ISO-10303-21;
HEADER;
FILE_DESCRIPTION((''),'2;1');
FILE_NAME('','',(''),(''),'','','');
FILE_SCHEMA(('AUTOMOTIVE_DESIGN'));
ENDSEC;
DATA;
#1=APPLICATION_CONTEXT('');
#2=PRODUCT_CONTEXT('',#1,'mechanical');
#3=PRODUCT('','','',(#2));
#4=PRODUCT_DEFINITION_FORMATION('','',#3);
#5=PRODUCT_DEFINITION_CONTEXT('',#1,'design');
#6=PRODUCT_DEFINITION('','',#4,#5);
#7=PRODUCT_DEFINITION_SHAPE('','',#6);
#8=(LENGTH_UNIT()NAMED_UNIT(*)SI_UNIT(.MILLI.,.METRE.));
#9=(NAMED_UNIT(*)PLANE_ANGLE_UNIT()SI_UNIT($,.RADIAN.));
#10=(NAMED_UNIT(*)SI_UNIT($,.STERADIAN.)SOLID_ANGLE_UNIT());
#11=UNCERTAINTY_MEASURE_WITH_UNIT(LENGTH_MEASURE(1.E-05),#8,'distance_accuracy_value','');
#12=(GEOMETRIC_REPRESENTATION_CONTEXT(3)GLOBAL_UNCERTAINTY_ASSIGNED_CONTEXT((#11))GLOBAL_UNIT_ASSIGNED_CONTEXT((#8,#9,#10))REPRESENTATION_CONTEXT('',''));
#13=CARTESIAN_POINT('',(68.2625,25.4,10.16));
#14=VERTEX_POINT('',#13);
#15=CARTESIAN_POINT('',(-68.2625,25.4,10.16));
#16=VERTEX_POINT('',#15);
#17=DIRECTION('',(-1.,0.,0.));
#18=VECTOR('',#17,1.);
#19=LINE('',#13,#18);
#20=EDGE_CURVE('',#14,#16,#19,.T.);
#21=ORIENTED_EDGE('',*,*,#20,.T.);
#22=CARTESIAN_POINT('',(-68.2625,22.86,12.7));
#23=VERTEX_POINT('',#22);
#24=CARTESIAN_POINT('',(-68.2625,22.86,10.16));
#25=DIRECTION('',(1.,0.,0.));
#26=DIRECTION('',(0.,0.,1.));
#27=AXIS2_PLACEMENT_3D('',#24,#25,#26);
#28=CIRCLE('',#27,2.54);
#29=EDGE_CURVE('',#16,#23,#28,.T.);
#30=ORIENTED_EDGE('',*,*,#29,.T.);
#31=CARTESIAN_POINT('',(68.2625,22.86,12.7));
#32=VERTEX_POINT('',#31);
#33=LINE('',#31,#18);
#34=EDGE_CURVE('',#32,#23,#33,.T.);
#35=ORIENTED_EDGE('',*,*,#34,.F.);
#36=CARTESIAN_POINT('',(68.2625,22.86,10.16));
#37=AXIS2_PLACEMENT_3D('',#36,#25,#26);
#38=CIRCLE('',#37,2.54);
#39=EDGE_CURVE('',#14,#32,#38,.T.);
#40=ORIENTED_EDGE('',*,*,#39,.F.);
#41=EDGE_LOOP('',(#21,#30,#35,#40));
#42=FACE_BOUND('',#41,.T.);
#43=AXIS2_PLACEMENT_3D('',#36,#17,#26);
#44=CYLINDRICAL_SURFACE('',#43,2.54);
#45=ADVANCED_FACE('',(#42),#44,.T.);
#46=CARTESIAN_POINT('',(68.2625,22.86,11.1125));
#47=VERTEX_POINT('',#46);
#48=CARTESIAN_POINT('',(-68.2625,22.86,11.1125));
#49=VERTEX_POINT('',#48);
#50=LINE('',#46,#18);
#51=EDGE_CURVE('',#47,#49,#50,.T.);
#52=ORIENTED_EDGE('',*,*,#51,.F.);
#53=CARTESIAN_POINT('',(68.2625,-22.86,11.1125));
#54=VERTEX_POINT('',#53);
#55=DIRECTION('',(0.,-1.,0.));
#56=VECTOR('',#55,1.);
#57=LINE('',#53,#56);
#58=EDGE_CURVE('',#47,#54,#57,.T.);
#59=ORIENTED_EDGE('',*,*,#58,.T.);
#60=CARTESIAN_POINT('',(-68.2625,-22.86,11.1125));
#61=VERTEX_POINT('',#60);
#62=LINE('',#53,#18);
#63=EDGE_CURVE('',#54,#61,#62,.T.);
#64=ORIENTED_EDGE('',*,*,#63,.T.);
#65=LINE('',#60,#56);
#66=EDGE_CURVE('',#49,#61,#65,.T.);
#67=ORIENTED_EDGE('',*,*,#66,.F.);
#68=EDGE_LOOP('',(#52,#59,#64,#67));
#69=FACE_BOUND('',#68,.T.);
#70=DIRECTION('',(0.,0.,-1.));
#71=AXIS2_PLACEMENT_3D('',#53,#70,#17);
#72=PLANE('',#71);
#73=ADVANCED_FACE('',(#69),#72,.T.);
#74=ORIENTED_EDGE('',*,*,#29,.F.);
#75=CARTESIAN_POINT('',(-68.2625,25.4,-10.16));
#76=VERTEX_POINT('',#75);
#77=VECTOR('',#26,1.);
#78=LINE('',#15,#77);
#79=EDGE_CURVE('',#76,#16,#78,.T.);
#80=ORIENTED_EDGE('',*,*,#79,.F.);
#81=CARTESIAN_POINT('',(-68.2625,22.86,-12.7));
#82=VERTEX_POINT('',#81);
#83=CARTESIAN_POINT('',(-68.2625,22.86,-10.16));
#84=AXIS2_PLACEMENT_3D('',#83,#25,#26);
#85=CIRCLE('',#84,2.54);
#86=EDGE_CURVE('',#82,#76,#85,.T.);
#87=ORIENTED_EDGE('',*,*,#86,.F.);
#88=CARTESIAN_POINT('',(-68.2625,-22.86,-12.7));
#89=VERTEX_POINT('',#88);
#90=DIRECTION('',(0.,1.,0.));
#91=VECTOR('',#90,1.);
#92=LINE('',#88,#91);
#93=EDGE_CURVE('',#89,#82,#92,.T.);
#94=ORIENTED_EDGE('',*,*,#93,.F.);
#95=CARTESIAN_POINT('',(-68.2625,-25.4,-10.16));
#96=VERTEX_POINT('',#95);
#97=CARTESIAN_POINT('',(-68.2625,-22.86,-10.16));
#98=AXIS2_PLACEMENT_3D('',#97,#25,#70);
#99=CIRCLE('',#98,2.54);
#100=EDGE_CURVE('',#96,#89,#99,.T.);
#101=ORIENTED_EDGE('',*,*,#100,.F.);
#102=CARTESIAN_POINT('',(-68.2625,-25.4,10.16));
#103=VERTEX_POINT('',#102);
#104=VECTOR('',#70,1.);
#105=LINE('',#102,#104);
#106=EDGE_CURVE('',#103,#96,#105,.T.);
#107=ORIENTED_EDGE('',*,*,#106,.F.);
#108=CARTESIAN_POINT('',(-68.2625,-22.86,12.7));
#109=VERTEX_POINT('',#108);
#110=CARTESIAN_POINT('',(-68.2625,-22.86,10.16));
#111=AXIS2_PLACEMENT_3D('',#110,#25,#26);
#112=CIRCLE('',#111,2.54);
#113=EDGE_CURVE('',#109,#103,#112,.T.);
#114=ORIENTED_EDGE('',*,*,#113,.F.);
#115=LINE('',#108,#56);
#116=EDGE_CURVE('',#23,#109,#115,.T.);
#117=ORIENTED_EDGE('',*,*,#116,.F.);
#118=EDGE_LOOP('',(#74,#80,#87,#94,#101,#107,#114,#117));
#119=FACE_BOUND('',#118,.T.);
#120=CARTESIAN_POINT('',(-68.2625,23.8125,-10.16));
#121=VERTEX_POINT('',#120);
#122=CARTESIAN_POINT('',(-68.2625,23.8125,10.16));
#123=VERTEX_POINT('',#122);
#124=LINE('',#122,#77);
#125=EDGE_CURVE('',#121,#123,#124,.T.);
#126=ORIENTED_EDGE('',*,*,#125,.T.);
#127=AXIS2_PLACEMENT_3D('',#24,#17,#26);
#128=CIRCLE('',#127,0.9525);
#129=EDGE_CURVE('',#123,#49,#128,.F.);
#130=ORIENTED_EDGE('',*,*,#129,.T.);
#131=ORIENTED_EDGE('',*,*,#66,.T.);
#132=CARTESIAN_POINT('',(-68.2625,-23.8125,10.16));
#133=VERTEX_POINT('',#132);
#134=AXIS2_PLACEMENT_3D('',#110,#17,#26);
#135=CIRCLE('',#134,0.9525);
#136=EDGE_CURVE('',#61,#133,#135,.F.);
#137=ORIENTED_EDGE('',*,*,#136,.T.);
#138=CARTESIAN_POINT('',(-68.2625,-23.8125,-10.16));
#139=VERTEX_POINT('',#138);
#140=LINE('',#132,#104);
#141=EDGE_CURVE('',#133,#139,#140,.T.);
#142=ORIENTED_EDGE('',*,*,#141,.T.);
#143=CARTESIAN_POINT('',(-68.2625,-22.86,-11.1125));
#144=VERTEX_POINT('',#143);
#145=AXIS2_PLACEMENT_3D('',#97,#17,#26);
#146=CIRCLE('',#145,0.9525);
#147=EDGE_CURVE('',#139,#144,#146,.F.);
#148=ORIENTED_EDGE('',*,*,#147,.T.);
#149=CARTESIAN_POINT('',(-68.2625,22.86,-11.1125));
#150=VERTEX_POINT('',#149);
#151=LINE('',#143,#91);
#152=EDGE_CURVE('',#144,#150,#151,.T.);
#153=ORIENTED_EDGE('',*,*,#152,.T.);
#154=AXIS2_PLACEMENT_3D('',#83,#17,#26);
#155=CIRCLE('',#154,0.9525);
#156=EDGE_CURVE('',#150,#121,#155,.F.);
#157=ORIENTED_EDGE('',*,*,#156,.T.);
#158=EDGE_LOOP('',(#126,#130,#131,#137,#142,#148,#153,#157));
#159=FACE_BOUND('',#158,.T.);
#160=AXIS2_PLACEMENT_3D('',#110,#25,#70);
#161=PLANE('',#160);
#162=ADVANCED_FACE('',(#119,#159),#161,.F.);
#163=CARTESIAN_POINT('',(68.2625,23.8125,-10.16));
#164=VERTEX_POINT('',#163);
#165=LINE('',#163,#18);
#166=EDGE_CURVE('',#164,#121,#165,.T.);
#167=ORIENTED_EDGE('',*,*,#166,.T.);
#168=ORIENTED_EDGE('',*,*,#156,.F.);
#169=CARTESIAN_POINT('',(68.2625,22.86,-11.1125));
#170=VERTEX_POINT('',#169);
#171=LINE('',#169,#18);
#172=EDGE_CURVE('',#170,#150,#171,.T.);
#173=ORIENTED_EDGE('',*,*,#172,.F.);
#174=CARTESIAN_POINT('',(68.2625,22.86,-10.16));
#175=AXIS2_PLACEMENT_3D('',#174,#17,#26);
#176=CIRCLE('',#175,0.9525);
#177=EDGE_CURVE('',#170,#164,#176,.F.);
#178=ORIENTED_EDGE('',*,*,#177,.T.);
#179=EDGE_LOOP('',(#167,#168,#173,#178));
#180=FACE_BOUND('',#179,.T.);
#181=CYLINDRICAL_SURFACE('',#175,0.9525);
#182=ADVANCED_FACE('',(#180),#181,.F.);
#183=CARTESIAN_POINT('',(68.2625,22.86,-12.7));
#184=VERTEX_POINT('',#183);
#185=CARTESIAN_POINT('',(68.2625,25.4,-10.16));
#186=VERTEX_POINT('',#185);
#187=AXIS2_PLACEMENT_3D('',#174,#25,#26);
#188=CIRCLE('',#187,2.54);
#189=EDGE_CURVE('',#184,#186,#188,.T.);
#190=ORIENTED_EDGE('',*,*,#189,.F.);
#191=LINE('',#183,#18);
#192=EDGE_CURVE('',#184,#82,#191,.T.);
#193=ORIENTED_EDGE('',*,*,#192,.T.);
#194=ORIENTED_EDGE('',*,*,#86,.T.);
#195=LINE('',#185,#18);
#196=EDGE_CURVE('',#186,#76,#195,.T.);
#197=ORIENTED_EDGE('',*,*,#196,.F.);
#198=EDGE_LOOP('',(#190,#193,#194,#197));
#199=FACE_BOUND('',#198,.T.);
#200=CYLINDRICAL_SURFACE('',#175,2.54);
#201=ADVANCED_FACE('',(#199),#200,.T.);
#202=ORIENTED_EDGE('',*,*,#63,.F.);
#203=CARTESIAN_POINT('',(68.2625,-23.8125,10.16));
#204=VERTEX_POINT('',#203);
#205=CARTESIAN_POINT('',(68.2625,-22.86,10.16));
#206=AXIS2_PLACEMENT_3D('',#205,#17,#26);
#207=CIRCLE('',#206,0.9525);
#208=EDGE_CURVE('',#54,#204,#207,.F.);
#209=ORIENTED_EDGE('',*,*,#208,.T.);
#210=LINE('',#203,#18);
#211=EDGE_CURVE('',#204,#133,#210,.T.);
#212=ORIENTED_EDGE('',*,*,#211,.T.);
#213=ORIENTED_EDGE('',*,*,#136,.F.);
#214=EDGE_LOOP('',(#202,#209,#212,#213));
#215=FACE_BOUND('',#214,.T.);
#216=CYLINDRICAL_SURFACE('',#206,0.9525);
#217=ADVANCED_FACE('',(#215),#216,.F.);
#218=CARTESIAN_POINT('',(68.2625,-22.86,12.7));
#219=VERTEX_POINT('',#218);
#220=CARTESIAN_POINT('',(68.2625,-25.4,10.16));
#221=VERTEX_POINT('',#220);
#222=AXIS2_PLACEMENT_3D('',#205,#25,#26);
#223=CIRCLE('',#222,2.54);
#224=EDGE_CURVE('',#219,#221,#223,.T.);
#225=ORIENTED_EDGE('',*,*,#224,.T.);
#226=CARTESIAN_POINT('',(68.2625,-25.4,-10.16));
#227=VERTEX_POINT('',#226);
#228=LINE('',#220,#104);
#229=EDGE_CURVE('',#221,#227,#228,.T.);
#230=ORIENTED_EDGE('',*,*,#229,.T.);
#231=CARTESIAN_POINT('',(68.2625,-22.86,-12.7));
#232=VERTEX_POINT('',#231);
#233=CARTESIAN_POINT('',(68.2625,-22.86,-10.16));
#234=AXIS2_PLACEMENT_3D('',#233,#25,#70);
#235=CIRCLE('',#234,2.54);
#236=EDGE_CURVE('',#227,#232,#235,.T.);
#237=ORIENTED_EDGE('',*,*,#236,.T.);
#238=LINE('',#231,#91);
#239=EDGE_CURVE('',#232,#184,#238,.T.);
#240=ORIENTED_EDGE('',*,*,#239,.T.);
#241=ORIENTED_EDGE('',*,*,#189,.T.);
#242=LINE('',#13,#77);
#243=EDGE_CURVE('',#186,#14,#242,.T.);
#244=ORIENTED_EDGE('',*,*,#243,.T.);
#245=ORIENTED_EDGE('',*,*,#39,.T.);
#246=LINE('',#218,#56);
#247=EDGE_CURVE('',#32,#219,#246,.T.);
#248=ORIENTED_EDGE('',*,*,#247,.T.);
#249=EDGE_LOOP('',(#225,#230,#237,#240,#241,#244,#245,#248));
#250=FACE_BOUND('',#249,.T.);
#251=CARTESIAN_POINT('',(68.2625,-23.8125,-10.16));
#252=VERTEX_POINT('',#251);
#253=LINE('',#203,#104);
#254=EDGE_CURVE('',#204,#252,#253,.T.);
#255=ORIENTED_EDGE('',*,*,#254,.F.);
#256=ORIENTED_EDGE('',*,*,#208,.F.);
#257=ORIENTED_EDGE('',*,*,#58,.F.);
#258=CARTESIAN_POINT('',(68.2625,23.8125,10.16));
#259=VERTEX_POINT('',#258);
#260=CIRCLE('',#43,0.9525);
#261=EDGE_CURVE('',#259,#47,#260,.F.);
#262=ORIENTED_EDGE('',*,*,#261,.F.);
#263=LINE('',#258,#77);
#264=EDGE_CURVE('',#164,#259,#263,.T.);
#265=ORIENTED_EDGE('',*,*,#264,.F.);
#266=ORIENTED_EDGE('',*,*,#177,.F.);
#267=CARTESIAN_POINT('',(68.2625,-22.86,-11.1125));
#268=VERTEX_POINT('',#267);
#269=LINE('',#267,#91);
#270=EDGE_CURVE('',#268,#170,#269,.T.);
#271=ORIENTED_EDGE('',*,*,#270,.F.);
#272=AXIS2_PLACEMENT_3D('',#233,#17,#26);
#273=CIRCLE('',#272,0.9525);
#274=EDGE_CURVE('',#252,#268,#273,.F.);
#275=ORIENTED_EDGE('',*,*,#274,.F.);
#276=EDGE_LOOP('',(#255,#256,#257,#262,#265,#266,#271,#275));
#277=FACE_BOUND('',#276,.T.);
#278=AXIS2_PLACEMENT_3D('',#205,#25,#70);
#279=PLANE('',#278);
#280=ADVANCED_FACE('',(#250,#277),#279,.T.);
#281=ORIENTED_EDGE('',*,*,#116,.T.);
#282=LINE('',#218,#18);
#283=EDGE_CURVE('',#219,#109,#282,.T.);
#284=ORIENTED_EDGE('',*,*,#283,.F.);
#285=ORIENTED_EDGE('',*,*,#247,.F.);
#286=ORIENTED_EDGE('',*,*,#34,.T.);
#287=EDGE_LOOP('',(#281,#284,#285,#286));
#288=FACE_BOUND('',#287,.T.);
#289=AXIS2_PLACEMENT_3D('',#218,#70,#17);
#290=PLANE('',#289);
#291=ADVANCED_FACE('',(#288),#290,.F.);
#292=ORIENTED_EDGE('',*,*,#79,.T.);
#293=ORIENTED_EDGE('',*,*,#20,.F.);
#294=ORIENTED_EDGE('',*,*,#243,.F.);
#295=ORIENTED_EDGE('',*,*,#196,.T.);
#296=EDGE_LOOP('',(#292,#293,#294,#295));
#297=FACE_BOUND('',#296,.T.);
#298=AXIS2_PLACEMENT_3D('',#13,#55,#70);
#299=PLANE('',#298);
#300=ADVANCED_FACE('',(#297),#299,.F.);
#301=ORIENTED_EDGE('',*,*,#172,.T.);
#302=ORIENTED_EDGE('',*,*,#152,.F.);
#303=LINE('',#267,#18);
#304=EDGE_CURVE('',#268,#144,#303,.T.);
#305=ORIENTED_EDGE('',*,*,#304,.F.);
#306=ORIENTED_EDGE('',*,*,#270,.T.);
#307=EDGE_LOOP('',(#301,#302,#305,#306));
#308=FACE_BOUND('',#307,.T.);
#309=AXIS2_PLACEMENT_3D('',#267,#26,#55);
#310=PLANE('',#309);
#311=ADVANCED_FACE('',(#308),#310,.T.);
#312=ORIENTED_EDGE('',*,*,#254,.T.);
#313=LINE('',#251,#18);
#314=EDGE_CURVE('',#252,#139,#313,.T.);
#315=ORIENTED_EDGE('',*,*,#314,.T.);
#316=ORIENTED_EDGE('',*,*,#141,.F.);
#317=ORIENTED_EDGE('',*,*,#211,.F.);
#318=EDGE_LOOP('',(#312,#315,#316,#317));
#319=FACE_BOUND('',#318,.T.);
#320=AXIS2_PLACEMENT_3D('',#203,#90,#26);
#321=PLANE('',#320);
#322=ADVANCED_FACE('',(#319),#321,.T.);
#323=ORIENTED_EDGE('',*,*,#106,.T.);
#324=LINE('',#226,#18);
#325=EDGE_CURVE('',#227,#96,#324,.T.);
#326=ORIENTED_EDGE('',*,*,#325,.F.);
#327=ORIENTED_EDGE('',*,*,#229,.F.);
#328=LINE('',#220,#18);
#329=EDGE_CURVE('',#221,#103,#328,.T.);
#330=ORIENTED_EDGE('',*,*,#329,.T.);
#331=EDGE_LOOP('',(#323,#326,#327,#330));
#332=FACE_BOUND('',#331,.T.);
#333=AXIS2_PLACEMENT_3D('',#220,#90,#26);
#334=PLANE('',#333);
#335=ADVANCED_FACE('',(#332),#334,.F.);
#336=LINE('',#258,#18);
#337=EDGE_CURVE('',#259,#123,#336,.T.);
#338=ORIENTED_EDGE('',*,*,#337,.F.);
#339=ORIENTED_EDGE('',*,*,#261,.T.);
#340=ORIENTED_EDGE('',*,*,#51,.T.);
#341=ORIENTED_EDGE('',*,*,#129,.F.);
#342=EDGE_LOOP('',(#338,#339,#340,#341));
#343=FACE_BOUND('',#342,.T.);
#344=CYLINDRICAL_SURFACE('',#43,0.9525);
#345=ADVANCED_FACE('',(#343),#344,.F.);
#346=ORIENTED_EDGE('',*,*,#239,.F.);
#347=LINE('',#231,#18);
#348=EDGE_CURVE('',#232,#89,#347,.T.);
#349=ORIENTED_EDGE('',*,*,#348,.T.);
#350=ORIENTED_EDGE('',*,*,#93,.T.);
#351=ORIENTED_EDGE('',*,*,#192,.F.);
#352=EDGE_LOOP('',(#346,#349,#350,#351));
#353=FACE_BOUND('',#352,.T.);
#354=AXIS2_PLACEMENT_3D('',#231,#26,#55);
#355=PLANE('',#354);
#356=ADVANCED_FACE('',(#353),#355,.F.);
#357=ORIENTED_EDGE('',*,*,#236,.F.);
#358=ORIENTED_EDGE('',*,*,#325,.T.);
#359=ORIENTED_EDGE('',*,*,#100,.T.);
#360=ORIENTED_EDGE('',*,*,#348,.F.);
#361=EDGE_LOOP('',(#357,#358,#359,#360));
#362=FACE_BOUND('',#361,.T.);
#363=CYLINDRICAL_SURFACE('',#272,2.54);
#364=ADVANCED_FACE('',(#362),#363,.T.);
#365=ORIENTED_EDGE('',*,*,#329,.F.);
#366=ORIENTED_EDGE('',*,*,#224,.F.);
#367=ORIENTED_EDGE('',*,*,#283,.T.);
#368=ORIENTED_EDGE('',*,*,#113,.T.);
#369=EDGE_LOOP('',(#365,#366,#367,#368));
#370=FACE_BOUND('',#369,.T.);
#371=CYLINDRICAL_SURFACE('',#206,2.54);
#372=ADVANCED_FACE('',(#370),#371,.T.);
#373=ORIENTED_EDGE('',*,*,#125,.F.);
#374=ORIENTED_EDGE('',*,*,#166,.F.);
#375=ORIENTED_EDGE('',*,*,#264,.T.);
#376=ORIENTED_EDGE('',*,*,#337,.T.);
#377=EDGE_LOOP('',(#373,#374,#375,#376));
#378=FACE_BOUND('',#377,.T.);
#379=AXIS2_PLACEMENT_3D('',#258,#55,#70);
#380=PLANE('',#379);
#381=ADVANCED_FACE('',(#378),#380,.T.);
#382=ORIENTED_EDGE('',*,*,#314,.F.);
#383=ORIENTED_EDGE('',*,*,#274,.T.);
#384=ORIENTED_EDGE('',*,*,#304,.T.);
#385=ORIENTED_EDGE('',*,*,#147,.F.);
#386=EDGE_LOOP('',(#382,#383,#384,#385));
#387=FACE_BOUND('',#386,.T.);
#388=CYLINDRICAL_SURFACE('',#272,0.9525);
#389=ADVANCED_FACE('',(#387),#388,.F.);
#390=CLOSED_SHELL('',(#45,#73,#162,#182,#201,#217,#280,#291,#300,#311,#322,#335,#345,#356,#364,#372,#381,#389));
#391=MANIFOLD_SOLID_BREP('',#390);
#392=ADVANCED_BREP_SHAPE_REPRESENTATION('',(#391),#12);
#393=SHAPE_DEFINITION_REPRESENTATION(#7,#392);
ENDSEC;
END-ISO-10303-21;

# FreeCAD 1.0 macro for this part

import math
import FreeCAD as App
import Part
import Sketcher
Q = App.Units.Quantity

doc = App.newDocument("Part")
body = doc.addObject("PartDesign::Body", "Body")

sketch1 = doc.addObject("Sketcher::SketchObject", "Sketch")
body.addObject(sketch1)
sketch1.AttachmentSupport = (doc.YZ_Plane, [""])
sketch1.MapMode = "FlatFace"
sketch1.addGeometry(Part.LineSegment(App.Vector(22.86, 12.7, 0), App.Vector(-22.86, 12.7, 0)), False)
sketch1.addGeometry(Part.ArcOfCircle(Part.Circle(App.Vector(-22.86, 10.16, 0), App.Vector(0, 0, 1), 2.54), math.radians(90), math.radians(180)), False)
sketch1.addGeometry(Part.LineSegment(App.Vector(-25.4, 10.16, 0), App.Vector(-25.4, -10.16, 0)), False)
sketch1.addGeometry(Part.ArcOfCircle(Part.Circle(App.Vector(-22.86, -10.16, 0), App.Vector(0, 0, 1), 2.54), math.radians(-180), math.radians(-90)), False)
sketch1.addGeometry(Part.LineSegment(App.Vector(-22.86, -12.7, 0), App.Vector(22.86, -12.7, 0)), False)
sketch1.addGeometry(Part.ArcOfCircle(Part.Circle(App.Vector(22.86, -10.16, 0), App.Vector(0, 0, 1), 2.54), math.radians(-90), math.radians(0)), False)
sketch1.addGeometry(Part.LineSegment(App.Vector(25.4, -10.16, 0), App.Vector(25.4, 10.16, 0)), False)
sketch1.addGeometry(Part.ArcOfCircle(Part.Circle(App.Vector(22.86, 10.16, 0), App.Vector(0, 0, 1), 2.54), math.radians(0), math.radians(90)), False)
sketch1.addGeometry(Part.LineSegment(App.Vector(-22.86, 11.1125, 0), App.Vector(22.86, 11.1125, 0)), False)
sketch1.addGeometry(Part.ArcOfCircle(Part.Circle(App.Vector(22.86, 10.16, 0), App.Vector(0, 0, 1), 0.9525), math.radians(0), math.radians(90)), False)
sketch1.addGeometry(Part.LineSegment(App.Vector(23.8125, 10.16, 0), App.Vector(23.8125, -10.16, 0)), False)
sketch1.addGeometry(Part.ArcOfCircle(Part.Circle(App.Vector(22.86, -10.16, 0), App.Vector(0, 0, 1), 0.9525), math.radians(-90), math.radians(0)), False)
sketch1.addGeometry(Part.LineSegment(App.Vector(22.86, -11.1125, 0), App.Vector(-22.86, -11.1125, 0)), False)
sketch1.addGeometry(Part.ArcOfCircle(Part.Circle(App.Vector(-22.86, -10.16, 0), App.Vector(0, 0, 1), 0.9525), math.radians(180), math.radians(270)), False)
sketch1.addGeometry(Part.LineSegment(App.Vector(-23.8125, -10.16, 0), App.Vector(-23.8125, 10.16, 0)), False)
sketch1.addGeometry(Part.ArcOfCircle(Part.Circle(App.Vector(-22.86, 10.16, 0), App.Vector(0, 0, 1), 0.9525), math.radians(90), math.radians(180)), False)
sketch1.addConstraint(Sketcher.Constraint("Tangent", 0, 2, 1, 1))
sketch1.addConstraint(Sketcher.Constraint("Tangent", 1, 2, 2, 1))
sketch1.addConstraint(Sketcher.Constraint("Tangent", 2, 2, 3, 1))
sketch1.addConstraint(Sketcher.Constraint("Tangent", 3, 2, 4, 1))
sketch1.addConstraint(Sketcher.Constraint("Tangent", 4, 2, 5, 1))
sketch1.addConstraint(Sketcher.Constraint("Tangent", 5, 2, 6, 1))
sketch1.addConstraint(Sketcher.Constraint("Tangent", 6, 2, 7, 1))
sketch1.addConstraint(Sketcher.Constraint("Tangent", 7, 2, 0, 1))
sketch1.addConstraint(Sketcher.Constraint("Tangent", 8, 2, 9, 2))
sketch1.addConstraint(Sketcher.Constraint("Tangent", 9, 1, 10, 1))
sketch1.addConstraint(Sketcher.Constraint("Tangent", 10, 2, 11, 2))
sketch1.addConstraint(Sketcher.Constraint("Tangent", 11, 1, 12, 1))
sketch1.addConstraint(Sketcher.Constraint("Tangent", 12, 2, 13, 2))
sketch1.addConstraint(Sketcher.Constraint("Tangent", 13, 1, 14, 1))
sketch1.addConstraint(Sketcher.Constraint("Tangent", 14, 2, 15, 2))
sketch1.addConstraint(Sketcher.Constraint("Tangent", 15, 1, 8, 1))
sketch1.addConstraint(Sketcher.Constraint("Horizontal", 0))
sketch1.addConstraint(Sketcher.Constraint("Vertical", 2))
sketch1.addConstraint(Sketcher.Constraint("Horizontal", 4))
sketch1.addConstraint(Sketcher.Constraint("Vertical", 6))
sketch1.addConstraint(Sketcher.Constraint("Horizontal", 8))
sketch1.addConstraint(Sketcher.Constraint("Vertical", 10))
sketch1.addConstraint(Sketcher.Constraint("Horizontal", 12))
sketch1.addConstraint(Sketcher.Constraint("Vertical", 14))
sketch1.addConstraint(Sketcher.Constraint("Coincident", 9, 3, 7, 3))
sketch1.addConstraint(Sketcher.Constraint("Coincident", 11, 3, 5, 3))
sketch1.addConstraint(Sketcher.Constraint("Coincident", 13, 3, 3, 3))
sketch1.addConstraint(Sketcher.Constraint("Equal", 1, 3))
sketch1.addConstraint(Sketcher.Constraint("Equal", 3, 5))
sketch1.addConstraint(Sketcher.Constraint("Equal", 5, 7))
sketch1.addConstraint(Sketcher.Constraint("Equal", 13, 15))
sketch1.addConstraint(Sketcher.Constraint("Symmetric", 1, 3, 5, 3, -1, 1))
sketch1.addConstraint(Sketcher.Constraint("Radius", 1, Q("0.1 in")))
sketch1.addConstraint(Sketcher.Constraint("DistanceX", 0, 2, 0, 1, Q("1.8 in")))
sketch1.addConstraint(Sketcher.Constraint("DistanceY", 2, 2, 2, 1, Q("0.8 in")))
sketch1.addConstraint(Sketcher.Constraint("Radius", 9, Q("0.0375 in")))
pad1 = doc.addObject("PartDesign::Pad", "Pad")
body.addObject(pad1)
pad1.Profile = sketch1
pad1.Length = Q("5.375 in")
pad1.Midplane = True

doc.recompute()
